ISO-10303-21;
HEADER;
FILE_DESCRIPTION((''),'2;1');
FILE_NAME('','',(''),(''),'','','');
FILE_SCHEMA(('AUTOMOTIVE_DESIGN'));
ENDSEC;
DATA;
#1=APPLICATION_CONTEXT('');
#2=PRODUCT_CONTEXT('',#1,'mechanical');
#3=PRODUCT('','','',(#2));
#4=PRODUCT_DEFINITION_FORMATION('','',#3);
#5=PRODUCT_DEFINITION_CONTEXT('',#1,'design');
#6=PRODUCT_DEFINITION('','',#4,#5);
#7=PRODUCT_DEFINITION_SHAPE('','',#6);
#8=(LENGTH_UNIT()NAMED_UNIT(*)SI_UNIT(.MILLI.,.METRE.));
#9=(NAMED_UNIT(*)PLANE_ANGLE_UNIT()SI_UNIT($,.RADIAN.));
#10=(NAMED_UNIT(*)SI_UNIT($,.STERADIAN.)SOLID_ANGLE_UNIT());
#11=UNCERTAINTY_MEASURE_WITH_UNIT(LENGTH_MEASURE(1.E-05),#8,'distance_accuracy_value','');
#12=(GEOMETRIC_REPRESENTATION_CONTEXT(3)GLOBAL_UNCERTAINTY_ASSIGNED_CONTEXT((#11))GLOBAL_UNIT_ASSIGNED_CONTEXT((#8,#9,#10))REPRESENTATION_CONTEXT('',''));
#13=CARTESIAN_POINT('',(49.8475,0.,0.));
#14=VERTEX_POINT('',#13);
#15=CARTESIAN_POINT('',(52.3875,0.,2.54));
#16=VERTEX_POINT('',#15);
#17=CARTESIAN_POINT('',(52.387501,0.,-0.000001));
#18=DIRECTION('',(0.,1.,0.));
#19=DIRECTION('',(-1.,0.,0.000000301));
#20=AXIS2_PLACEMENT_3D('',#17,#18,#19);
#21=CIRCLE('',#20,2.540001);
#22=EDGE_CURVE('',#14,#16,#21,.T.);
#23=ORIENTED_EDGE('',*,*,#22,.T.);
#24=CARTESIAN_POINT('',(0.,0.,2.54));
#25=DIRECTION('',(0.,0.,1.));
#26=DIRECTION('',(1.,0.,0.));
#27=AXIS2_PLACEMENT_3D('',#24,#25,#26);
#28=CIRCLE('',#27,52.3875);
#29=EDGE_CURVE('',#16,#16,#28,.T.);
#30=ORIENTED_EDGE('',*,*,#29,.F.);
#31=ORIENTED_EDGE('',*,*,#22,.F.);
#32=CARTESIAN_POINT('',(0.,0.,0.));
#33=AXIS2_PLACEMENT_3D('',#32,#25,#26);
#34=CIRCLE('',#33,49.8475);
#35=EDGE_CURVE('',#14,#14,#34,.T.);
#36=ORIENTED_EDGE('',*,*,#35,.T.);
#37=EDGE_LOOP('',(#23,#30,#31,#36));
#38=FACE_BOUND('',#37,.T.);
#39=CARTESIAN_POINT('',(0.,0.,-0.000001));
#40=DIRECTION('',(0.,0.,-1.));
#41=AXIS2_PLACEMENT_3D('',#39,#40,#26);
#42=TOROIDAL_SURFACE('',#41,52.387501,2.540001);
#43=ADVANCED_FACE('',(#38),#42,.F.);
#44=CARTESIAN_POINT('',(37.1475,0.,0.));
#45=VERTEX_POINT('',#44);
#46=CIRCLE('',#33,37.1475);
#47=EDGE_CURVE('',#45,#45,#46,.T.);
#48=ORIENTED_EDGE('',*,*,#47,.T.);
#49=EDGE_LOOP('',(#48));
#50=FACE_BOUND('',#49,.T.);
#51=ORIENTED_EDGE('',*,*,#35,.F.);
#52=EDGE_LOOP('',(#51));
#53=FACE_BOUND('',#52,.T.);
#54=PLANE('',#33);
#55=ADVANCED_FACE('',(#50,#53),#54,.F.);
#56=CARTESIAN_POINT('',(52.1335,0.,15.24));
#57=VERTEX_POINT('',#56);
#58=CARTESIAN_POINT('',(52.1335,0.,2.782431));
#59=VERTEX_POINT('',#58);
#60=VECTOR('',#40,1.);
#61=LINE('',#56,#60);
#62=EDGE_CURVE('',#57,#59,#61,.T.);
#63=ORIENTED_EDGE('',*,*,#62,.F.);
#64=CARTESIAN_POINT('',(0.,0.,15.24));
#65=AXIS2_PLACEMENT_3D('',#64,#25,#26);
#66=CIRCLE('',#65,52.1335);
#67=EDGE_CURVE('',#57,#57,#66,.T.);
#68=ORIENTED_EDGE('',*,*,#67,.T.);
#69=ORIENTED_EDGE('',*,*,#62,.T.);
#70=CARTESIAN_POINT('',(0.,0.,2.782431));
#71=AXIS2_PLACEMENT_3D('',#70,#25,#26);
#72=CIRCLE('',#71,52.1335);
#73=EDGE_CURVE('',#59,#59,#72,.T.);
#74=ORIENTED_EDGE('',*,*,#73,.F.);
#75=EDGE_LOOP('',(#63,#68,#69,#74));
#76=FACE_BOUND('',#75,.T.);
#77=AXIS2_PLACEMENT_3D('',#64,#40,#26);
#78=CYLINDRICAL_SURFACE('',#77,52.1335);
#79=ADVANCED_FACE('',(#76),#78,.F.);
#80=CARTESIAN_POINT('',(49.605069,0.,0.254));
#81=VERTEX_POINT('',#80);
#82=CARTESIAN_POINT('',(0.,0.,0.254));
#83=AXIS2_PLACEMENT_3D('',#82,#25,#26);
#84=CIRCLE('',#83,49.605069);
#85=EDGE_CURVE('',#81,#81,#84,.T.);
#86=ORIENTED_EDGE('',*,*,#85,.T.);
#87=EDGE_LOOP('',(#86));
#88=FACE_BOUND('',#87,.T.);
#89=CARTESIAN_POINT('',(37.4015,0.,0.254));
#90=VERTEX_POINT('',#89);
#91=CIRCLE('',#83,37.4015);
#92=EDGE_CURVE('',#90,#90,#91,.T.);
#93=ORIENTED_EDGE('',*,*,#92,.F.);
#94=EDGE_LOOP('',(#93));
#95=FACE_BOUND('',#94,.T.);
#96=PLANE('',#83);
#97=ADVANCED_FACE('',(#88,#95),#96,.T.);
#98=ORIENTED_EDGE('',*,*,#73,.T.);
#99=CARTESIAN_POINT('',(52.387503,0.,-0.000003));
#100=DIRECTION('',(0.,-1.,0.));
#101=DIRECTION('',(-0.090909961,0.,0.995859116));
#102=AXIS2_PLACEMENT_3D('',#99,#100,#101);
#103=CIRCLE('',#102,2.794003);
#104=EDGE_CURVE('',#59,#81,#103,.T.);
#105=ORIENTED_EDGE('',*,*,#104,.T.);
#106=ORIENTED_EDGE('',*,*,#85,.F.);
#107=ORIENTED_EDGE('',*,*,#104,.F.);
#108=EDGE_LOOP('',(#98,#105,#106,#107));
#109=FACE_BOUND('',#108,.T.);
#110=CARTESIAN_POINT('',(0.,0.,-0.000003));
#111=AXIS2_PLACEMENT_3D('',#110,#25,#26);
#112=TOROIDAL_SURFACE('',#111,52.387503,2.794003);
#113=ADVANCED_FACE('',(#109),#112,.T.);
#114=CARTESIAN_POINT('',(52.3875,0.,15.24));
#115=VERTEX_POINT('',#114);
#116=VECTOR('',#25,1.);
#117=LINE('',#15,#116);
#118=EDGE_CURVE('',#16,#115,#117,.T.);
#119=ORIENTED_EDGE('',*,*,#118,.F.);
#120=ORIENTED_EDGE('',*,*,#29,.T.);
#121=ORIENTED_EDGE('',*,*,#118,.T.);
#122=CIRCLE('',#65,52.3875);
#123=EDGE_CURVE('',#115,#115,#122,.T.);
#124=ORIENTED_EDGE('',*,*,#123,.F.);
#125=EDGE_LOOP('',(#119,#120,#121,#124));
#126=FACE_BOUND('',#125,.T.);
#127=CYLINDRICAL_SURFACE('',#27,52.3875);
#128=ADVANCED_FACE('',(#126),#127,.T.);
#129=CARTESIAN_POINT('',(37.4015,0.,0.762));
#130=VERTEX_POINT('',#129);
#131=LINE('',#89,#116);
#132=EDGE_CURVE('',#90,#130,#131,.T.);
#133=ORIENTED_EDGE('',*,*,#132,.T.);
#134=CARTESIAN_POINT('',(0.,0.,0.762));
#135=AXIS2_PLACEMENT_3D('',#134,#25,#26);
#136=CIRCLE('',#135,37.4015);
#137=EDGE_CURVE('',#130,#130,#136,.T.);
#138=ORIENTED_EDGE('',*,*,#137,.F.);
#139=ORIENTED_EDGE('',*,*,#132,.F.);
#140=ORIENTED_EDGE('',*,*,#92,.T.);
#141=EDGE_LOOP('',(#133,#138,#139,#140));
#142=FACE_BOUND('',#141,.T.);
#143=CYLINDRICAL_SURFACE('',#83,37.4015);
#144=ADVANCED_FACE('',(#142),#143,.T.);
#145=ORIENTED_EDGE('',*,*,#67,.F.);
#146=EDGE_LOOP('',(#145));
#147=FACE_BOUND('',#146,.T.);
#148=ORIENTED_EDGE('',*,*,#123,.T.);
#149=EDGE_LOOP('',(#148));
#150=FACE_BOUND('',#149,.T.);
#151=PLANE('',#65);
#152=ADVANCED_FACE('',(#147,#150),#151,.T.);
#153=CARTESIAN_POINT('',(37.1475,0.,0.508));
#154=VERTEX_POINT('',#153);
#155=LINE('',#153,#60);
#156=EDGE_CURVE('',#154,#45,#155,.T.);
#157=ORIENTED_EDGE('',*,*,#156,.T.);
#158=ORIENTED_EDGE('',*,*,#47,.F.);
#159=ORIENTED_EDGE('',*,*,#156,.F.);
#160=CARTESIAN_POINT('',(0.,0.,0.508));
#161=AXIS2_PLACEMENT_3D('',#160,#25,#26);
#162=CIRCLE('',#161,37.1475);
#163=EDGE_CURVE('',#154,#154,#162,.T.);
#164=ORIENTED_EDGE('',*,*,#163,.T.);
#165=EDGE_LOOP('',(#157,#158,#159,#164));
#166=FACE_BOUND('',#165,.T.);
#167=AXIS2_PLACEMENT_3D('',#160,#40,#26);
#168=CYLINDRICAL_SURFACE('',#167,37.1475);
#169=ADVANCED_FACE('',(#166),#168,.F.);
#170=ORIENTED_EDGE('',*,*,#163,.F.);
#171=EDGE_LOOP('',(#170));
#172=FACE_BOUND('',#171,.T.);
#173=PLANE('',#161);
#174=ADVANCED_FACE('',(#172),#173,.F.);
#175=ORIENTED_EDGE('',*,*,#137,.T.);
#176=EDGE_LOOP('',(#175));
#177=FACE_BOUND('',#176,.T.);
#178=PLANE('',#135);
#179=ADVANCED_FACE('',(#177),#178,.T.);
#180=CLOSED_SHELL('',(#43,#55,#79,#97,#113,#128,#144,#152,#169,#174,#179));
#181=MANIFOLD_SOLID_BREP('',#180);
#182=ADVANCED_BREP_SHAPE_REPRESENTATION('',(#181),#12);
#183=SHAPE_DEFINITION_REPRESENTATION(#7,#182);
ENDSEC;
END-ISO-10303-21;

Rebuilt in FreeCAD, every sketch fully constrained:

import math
import FreeCAD as App
import Part
import Sketcher
from FreeCAD import Vector
Q = App.Units.Quantity

doc = App.newDocument("Part")
body = doc.addObject("PartDesign::Body", "Body")

sketch1 = body.newObject("Sketcher::SketchObject", "Sketch")
sketch1.AttachmentSupport = (doc.getObject("XZ_Plane"), [""])
sketch1.MapMode = "FlatFace"
sketch1.addGeometry([
    Part.LineSegment(Vector(37.15, 0.51, 0), Vector(37.15, 0, 0)),
    Part.LineSegment(Vector(37.15, 0, 0), Vector(49.85, 0, 0)),
    Part.ArcOfCircle(Part.Circle(Vector(52.39, 0, 0), Vector(0, 0, 1), 2.54), math.radians(90), math.radians(180)),
    Part.LineSegment(Vector(52.39, 2.54, 0), Vector(52.39, 15.24, 0)),
    Part.LineSegment(Vector(52.39, 15.24, 0), Vector(52.13, 15.24, 0)),
    Part.LineSegment(Vector(52.13, 15.24, 0), Vector(52.13, 2.78, 0)),
    Part.ArcOfCircle(Part.Circle(Vector(52.39, 0, 0), Vector(0, 0, 1), 2.79), math.radians(95), math.radians(175)),
    Part.LineSegment(Vector(49.61, 0.25, 0), Vector(37.4, 0.25, 0)),
    Part.LineSegment(Vector(37.4, 0.25, 0), Vector(37.4, 0.76, 0)),
    Part.LineSegment(Vector(37.4, 0.76, 0), Vector(0, 0.76, 0)),
    Part.LineSegment(Vector(0, 0.76, 0), Vector(0, 0.51, 0)),
    Part.LineSegment(Vector(0, 0.51, 0), Vector(37.15, 0.51, 0)),
], False)
sketch1.addConstraint([
    Sketcher.Constraint("Coincident", 0, 2, 1, 1),
    Sketcher.Constraint("Coincident", 1, 2, 2, 2),
    Sketcher.Constraint("Coincident", 2, 1, 3, 1),
    Sketcher.Constraint("Coincident", 3, 2, 4, 1),
    Sketcher.Constraint("Coincident", 4, 2, 5, 1),
    Sketcher.Constraint("Coincident", 5, 2, 6, 1),
    Sketcher.Constraint("Coincident", 6, 2, 7, 1),
    Sketcher.Constraint("Coincident", 7, 2, 8, 1),
    Sketcher.Constraint("Coincident", 8, 2, 9, 1),
    Sketcher.Constraint("Coincident", 9, 2, 10, 1),
    Sketcher.Constraint("Coincident", 10, 2, 11, 1),
    Sketcher.Constraint("Coincident", 11, 2, 0, 1),
    Sketcher.Constraint("Vertical", 0),
    Sketcher.Constraint("Horizontal", 1),
    Sketcher.Constraint("Vertical", 3),
    Sketcher.Constraint("Horizontal", 4),
    Sketcher.Constraint("Vertical", 5),
    Sketcher.Constraint("Horizontal", 7),
    Sketcher.Constraint("Vertical", 8),
    Sketcher.Constraint("Horizontal", 9),
    Sketcher.Constraint("Vertical", 10),
    Sketcher.Constraint("Horizontal", 11),
    Sketcher.Constraint("Coincident", 6, 3, 2, 3),
    Sketcher.Constraint("PointOnObject", 2, 3, -1),
    Sketcher.Constraint("PointOnObject", 0, 2, -1),
    Sketcher.Constraint("PointOnObject", 9, 2, -2),
    Sketcher.Constraint("Equal", 1, 3),
    Sketcher.Constraint("Equal", 0, 8),
    Sketcher.Constraint("Equal", 4, 10),
    Sketcher.Constraint("Radius", 2, Q("0.1 in")),
    Sketcher.Constraint("Radius", 6, Q("0.1100001 in")),
    Sketcher.Constraint("DistanceX", 1, 1, 1, 2, Q("0.5 in")),
    Sketcher.Constraint("DistanceX", 4, 2, 4, 1, Q("0.01 in")),
    Sketcher.Constraint("DistanceY", 0, 2, 0, 1, Q("0.02 in")),
    Sketcher.Constraint("DistanceX", 1, 2, 2, 1, Q("0.1 in")),
    Sketcher.Constraint("DistanceX", 0, 2, 7, 2, Q("0.01 in")),
    Sketcher.Constraint("DistanceX", 9, 2, 9, 1, Q("1.4725 in")),
])
revolution = body.newObject("PartDesign::Revolution", "Revolution")
revolution.Profile = sketch1
revolution.ReferenceAxis = (sketch1, ["V_Axis"])
revolution.Angle = 360

doc.recompute()
